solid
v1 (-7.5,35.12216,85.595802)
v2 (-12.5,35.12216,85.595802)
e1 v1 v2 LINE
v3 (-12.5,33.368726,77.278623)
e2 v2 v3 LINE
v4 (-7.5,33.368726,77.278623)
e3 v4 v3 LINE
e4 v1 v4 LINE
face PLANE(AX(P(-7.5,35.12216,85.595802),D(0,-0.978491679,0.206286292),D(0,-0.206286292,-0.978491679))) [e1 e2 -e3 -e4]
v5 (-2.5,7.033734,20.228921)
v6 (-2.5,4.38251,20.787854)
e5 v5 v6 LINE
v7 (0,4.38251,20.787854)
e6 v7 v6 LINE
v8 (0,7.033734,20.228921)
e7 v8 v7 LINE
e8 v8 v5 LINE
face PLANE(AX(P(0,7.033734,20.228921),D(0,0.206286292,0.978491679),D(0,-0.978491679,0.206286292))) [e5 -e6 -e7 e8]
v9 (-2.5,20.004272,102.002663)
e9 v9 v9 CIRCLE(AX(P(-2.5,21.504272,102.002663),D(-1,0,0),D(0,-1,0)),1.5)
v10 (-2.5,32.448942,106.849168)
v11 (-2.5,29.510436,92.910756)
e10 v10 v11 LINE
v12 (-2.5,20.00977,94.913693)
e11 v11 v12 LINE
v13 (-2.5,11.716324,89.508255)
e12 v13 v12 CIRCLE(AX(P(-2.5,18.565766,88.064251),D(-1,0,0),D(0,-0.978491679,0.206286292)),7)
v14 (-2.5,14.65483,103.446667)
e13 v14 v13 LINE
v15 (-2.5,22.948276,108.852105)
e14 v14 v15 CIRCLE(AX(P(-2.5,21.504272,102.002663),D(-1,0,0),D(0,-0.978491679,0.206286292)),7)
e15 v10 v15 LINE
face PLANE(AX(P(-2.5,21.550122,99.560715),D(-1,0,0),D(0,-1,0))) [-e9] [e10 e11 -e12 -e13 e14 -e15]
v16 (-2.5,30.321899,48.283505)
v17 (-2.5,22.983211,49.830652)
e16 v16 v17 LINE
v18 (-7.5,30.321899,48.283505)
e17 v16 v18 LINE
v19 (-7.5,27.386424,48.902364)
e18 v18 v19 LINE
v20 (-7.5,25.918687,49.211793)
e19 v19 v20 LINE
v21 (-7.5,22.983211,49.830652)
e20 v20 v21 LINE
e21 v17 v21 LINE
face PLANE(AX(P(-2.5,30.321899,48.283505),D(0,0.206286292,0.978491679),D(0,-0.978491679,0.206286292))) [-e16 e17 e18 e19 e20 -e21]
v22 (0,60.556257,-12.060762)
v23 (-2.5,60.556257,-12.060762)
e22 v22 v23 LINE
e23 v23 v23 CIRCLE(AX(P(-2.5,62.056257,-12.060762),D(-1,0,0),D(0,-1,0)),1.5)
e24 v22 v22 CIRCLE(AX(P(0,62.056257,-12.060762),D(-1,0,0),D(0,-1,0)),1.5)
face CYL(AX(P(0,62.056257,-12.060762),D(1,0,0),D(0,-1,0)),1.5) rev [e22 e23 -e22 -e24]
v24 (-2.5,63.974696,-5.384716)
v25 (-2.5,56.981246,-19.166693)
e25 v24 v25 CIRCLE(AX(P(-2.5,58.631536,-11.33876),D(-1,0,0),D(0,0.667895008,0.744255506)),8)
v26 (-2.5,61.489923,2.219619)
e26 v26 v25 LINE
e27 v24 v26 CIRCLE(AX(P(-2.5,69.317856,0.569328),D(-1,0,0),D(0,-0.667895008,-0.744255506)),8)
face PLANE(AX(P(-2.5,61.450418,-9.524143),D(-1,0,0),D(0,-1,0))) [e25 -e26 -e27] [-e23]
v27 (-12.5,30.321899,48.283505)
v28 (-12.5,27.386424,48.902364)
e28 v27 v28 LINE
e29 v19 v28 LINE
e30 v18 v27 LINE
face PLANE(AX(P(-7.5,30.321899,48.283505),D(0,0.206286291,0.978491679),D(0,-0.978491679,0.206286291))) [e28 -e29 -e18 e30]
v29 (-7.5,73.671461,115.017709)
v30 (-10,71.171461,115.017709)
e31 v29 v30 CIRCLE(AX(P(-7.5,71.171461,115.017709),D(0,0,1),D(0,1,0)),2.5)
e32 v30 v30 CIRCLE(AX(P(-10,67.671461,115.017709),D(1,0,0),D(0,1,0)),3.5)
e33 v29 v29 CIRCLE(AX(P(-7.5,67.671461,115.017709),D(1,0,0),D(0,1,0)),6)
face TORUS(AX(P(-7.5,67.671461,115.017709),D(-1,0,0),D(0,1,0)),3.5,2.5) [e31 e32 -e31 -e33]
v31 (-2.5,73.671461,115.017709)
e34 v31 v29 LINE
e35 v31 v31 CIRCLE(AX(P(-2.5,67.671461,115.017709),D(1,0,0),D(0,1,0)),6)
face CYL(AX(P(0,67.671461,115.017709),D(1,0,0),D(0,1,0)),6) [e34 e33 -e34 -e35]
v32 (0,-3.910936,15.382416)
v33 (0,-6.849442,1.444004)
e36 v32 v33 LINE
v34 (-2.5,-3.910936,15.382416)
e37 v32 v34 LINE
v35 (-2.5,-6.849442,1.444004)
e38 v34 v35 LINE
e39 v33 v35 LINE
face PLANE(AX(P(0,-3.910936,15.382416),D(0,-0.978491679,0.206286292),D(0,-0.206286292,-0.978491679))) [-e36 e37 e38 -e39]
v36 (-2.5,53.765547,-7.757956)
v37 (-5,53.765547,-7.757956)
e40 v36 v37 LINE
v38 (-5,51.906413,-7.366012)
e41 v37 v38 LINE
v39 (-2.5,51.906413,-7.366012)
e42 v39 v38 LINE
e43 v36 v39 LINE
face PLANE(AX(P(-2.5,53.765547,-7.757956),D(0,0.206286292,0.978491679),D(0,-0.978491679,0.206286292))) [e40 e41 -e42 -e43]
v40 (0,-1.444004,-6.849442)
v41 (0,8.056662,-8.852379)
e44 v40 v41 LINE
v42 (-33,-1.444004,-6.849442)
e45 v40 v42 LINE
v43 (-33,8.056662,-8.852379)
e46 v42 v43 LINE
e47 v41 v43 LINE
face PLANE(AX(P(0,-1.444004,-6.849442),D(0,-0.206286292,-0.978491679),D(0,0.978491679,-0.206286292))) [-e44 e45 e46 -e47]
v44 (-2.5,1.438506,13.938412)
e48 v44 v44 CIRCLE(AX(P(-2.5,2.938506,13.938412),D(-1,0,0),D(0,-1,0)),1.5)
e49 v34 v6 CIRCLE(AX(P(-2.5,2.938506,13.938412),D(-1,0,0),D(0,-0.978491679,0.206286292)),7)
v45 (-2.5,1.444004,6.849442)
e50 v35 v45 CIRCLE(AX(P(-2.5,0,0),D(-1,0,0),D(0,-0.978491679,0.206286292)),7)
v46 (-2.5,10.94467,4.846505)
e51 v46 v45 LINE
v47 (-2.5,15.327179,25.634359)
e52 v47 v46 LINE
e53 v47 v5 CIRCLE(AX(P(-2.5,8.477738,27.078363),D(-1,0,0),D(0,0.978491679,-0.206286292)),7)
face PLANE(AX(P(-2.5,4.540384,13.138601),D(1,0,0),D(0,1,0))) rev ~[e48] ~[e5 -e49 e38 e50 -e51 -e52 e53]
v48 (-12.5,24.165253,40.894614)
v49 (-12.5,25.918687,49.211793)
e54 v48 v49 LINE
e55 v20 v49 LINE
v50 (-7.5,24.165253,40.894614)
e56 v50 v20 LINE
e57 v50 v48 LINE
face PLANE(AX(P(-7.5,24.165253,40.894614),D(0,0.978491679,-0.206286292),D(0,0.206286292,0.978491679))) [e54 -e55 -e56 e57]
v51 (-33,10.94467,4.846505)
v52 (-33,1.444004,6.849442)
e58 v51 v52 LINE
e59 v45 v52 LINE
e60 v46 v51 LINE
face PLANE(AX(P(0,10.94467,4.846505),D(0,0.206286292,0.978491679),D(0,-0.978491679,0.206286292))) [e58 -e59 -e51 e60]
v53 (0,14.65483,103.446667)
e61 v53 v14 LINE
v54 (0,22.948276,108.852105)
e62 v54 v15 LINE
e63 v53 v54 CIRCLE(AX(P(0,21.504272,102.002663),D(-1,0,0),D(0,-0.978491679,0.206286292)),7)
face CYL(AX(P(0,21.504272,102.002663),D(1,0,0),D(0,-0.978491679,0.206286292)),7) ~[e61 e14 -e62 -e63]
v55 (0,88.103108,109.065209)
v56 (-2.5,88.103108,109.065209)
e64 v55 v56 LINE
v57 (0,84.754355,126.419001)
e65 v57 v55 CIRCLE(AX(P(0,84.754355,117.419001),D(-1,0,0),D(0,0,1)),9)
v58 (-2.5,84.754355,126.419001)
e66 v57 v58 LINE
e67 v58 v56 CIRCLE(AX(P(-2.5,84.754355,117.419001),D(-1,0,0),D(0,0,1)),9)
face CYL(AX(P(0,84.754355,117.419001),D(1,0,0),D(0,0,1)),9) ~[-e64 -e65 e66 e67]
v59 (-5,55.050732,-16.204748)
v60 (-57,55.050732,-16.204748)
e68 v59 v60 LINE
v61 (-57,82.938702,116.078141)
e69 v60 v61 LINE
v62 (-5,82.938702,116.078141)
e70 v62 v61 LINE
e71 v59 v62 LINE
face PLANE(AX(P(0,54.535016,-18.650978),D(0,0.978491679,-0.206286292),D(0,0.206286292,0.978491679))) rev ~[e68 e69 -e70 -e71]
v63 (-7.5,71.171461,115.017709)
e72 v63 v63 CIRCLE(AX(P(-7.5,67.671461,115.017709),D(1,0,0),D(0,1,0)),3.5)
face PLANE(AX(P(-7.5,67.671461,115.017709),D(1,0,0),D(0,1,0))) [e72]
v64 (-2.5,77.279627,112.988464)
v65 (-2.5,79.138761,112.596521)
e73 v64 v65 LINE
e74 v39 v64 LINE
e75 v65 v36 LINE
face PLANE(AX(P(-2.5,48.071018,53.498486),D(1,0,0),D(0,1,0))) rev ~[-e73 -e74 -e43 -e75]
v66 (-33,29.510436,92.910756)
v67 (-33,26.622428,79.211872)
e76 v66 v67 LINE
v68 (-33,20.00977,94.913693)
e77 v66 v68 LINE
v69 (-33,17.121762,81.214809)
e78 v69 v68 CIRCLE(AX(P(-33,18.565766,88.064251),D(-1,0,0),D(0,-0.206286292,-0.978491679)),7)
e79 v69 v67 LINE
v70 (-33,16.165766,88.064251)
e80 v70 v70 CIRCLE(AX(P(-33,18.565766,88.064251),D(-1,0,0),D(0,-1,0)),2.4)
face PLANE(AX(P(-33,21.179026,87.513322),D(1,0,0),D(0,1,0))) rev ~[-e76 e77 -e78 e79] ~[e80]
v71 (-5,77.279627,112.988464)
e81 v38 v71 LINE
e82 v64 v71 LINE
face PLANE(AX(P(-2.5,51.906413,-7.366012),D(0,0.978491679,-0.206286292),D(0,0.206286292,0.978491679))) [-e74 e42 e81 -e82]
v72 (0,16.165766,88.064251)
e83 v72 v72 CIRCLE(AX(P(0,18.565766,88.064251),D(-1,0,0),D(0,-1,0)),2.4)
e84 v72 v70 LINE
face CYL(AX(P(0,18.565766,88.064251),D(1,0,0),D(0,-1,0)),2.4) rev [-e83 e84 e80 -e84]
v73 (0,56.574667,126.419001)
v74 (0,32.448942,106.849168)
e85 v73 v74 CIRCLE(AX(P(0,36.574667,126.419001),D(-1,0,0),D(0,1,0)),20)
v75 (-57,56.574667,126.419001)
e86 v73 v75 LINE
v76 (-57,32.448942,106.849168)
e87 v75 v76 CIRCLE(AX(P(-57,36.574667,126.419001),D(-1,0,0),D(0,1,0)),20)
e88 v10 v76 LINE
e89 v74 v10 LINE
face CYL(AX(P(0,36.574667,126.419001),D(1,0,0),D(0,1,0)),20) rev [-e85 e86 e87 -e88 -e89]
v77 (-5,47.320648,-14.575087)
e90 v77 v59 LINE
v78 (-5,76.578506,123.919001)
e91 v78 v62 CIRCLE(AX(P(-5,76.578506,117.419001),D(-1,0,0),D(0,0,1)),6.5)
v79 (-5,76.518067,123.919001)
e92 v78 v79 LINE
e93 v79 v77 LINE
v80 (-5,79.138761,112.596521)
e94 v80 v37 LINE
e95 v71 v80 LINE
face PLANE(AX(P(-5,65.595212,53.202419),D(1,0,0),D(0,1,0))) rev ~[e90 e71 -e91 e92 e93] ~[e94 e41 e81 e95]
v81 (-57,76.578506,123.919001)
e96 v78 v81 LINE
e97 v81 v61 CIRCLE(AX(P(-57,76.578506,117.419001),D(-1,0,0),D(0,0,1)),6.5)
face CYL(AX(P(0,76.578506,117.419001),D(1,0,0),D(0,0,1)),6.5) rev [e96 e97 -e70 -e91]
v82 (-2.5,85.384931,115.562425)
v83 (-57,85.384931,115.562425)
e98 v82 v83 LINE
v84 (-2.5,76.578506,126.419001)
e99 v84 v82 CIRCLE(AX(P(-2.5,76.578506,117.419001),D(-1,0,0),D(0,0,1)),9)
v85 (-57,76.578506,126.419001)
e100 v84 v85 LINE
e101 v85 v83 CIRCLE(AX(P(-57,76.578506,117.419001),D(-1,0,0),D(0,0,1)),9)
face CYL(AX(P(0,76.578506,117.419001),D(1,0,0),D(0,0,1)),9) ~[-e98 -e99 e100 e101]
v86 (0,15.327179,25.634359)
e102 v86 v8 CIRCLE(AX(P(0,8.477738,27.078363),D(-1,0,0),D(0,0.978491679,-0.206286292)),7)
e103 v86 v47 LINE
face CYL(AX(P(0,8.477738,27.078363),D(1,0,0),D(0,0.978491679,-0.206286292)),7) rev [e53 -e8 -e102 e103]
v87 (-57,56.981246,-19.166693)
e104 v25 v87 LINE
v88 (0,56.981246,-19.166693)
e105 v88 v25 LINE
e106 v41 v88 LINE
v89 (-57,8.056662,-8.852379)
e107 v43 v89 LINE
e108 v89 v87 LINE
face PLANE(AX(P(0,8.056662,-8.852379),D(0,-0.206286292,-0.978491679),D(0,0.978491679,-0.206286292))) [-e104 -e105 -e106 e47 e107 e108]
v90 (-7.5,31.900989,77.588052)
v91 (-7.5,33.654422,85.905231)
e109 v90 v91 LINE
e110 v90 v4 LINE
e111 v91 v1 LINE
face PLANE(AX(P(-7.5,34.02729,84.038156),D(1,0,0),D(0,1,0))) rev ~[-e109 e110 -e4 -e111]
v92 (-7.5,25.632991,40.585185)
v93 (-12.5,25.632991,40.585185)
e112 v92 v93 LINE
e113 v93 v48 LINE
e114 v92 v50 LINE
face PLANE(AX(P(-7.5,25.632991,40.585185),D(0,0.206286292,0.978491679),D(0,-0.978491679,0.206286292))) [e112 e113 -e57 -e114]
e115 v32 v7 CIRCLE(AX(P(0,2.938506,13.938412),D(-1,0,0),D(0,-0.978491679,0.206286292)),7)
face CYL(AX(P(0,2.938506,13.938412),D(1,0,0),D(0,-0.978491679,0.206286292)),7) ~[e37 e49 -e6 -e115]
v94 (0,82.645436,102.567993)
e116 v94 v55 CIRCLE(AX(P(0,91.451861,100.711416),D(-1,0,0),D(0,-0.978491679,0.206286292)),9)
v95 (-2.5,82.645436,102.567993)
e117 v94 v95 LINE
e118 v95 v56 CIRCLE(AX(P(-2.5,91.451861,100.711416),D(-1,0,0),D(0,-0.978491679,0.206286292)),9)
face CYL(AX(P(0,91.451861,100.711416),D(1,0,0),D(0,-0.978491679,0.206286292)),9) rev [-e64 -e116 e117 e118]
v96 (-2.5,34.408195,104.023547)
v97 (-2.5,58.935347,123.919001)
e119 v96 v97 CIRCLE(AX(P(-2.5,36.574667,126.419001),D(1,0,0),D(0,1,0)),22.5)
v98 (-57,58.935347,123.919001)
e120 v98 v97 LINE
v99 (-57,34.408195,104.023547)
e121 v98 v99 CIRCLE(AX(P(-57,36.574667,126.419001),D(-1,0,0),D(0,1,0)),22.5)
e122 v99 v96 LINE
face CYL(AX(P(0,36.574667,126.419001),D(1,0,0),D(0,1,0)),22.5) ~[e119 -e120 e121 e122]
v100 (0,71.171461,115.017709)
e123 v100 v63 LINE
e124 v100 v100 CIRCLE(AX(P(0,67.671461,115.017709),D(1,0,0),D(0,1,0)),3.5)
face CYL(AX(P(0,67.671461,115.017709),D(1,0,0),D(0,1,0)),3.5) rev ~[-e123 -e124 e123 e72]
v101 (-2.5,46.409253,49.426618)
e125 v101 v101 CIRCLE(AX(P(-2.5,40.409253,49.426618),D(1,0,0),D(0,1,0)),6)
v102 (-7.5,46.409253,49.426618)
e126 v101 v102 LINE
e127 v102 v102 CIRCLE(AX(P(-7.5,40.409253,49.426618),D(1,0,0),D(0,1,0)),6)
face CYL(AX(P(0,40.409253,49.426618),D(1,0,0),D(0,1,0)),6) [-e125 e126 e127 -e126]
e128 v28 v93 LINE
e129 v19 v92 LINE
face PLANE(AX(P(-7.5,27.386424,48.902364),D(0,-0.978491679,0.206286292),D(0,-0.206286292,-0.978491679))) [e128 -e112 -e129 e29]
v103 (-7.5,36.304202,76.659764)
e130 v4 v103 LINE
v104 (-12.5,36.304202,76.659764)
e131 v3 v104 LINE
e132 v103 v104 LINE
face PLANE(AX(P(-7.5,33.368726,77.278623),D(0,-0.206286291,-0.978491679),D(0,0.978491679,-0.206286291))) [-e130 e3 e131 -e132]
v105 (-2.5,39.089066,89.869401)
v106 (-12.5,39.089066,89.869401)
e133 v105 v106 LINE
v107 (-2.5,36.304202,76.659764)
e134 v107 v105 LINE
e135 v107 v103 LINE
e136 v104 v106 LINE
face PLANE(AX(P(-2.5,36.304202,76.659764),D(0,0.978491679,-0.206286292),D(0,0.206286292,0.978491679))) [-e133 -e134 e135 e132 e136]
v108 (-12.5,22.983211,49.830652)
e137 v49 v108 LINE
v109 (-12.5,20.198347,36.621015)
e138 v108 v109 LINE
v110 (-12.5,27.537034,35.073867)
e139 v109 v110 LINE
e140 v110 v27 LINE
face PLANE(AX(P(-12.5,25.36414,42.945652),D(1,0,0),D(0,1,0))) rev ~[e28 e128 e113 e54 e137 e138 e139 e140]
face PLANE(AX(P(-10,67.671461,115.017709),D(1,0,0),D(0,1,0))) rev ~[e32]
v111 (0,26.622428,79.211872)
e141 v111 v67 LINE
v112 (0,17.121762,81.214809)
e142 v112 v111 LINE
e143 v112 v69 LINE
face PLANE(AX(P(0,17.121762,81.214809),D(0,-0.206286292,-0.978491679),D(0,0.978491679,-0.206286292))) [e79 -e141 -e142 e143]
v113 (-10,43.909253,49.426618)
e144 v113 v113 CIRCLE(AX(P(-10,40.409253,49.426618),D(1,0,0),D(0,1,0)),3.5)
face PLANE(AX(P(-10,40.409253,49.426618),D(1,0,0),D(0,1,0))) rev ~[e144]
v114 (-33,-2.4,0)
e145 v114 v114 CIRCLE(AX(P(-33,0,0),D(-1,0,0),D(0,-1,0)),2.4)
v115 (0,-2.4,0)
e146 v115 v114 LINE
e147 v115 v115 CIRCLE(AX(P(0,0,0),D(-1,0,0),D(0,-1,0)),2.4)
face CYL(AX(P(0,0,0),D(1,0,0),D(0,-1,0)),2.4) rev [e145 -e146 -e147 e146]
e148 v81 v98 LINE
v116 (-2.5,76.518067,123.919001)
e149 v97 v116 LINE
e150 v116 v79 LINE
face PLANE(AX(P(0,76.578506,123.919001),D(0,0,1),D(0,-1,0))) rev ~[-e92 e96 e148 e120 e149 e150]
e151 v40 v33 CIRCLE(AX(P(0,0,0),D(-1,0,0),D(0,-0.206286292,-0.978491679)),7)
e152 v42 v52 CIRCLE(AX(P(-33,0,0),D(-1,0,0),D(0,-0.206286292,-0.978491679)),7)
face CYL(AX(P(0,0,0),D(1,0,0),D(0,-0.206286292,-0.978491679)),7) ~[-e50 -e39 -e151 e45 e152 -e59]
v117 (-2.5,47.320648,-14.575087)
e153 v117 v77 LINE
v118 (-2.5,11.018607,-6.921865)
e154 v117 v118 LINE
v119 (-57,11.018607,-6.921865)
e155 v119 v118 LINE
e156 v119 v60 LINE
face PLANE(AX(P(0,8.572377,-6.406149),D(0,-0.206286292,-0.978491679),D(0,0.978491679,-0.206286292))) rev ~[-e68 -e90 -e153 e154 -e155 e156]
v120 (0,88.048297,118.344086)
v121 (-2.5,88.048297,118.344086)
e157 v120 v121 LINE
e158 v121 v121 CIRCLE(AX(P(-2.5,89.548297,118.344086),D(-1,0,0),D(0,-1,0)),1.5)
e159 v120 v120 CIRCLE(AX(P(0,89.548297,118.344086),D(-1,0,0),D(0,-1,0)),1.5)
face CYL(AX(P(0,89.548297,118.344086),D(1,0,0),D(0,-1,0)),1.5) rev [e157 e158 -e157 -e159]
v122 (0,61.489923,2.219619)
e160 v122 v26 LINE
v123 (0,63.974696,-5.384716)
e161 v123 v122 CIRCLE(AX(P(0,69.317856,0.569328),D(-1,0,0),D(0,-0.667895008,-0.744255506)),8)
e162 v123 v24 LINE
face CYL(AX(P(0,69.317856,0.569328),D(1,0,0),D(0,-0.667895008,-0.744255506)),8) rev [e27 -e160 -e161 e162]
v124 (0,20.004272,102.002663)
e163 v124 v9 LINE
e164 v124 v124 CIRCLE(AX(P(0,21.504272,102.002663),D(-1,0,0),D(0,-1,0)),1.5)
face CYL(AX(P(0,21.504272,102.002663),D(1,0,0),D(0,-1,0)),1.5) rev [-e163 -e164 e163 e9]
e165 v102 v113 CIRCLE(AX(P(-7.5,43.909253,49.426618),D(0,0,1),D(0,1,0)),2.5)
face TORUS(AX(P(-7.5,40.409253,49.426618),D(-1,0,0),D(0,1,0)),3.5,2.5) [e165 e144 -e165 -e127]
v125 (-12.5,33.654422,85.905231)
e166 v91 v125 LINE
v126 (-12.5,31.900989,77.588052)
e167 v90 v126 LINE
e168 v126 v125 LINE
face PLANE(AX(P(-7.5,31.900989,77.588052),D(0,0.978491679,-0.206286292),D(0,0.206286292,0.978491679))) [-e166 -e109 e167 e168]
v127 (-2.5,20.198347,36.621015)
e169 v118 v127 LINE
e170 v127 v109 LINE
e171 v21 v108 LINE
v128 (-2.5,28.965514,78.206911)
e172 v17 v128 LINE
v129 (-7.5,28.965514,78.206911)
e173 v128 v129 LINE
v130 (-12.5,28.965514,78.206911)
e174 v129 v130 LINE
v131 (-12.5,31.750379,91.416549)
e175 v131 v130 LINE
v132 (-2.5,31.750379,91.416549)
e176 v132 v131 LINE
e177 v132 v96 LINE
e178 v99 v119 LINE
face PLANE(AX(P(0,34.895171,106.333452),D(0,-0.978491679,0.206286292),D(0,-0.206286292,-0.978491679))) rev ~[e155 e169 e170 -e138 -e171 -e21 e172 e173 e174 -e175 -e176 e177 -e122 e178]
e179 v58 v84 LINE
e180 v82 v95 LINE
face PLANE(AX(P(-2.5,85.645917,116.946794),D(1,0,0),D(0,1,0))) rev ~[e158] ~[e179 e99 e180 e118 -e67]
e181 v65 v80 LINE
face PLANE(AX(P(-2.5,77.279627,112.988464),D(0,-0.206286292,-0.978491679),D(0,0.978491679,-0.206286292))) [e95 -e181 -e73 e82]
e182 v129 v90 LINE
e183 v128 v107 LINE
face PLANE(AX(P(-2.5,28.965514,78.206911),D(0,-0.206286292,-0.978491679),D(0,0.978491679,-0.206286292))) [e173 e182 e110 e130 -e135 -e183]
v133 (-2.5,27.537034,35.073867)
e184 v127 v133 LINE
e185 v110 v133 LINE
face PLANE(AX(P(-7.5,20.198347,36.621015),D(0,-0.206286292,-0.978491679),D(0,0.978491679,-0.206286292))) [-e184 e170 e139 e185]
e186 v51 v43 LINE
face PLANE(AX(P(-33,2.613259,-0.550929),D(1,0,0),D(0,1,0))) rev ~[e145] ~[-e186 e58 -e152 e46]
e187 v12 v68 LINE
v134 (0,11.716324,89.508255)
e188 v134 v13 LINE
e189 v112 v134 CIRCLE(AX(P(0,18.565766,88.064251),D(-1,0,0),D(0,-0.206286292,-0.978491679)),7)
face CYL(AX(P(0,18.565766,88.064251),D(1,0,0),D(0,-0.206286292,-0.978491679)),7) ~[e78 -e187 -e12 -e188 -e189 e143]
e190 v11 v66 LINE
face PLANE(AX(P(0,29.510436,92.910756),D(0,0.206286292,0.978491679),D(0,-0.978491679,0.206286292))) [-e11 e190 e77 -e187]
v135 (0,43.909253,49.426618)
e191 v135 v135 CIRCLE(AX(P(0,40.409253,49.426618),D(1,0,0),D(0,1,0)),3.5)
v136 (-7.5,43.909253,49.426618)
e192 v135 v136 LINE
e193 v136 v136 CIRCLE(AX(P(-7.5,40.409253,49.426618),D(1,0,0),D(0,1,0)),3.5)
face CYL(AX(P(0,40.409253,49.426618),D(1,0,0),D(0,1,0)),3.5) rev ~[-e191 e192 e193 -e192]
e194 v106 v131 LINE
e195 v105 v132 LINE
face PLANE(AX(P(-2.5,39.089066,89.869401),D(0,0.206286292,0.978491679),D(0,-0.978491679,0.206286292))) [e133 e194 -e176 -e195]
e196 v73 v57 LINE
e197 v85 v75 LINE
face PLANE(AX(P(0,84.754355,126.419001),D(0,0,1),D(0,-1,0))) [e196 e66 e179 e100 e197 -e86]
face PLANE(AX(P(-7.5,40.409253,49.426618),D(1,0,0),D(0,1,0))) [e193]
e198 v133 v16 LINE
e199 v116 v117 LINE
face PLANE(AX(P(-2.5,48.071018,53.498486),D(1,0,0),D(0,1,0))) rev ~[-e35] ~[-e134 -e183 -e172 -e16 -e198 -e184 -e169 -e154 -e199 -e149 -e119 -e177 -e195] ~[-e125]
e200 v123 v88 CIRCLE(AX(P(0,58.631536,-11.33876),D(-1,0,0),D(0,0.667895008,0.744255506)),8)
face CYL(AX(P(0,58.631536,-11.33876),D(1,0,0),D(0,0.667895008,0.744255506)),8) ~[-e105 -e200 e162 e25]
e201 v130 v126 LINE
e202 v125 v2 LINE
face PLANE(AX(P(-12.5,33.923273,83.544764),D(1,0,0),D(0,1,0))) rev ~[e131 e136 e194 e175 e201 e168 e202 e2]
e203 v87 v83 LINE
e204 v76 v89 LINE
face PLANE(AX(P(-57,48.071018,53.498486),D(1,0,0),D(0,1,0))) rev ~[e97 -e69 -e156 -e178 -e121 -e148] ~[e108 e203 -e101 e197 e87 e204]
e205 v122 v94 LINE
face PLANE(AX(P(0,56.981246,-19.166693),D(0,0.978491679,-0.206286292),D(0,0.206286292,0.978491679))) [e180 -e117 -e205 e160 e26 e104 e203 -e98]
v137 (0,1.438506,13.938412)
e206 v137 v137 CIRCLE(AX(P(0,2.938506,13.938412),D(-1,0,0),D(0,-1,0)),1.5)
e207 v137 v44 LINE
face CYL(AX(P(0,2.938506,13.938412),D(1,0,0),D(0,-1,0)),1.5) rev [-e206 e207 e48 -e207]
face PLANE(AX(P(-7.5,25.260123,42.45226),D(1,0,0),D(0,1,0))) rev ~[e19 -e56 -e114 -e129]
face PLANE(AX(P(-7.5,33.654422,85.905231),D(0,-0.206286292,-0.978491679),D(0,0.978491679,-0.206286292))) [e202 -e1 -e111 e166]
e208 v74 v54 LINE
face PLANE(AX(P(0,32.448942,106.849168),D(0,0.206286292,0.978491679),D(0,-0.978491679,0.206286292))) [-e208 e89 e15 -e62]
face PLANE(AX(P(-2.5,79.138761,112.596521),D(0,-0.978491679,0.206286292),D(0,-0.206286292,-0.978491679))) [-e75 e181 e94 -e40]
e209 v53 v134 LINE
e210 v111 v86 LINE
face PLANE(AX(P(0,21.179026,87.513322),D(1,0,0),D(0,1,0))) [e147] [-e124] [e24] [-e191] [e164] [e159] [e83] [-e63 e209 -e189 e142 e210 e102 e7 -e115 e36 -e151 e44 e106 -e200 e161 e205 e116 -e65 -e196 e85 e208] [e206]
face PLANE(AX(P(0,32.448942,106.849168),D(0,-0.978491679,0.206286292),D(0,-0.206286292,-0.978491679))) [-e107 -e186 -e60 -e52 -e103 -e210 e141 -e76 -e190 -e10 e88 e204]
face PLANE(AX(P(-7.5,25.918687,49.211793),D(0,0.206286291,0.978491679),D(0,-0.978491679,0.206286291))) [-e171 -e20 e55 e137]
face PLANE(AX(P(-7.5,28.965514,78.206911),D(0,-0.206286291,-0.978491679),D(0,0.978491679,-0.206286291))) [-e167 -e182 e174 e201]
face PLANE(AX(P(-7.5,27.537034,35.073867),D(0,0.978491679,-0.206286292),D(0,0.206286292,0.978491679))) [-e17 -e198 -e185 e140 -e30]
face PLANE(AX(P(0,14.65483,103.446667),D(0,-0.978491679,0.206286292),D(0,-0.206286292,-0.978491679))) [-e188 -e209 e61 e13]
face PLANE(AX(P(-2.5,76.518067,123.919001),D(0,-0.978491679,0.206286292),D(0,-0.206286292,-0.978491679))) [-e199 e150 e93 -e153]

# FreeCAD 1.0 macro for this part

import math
import FreeCAD as App
import Part
import Sketcher

V = App.Vector
Q = App.Units.Quantity


def faces_at(feature, points):
    """Names of the faces that lie closest to the given points."""
    faces = feature.Shape.Faces
    near = lambda p: min(range(len(faces)), key=lambda i: faces[i].distToShape(Part.Vertex(*p))[0])
    return sorted({f"Face{near(p) + 1}" for p in points})


def add_polygon(sketch, points):
    """Adds a closed chain of lines whose ends are joined by coincident constraints."""
    first, n = sketch.GeometryCount, len(points)
    for a, b in zip(points, points[1:] + points[:1]):
        sketch.addGeometry(Part.LineSegment(App.Vector(*a, 0), App.Vector(*b, 0)), False)
    for i in range(n):
        sketch.addConstraint(Sketcher.Constraint("Coincident", first + i, 2, first + (i + 1) % n, 1))

doc = App.newDocument("Part")
params = doc.addObject("Spreadsheet::Sheet", "Params")
for row, (alias, value) in enumerate([
    ("sketch1_radius", "20 mm"),
    ("sketch1_radius2", "9 mm"),
    ("sketch1_length", "50 mm"),
    ("pad1_length", "57 mm"),
    ("sketch2_diameter", "7 mm"),
    ("pocket1_length", "7.5 mm"),
    ("thickness_wall", "2.5 mm"),
    ("sketch3_diameter", "3 mm"),
    ("sketch3_radius", "9 mm"),
    ("sketch3_radius2", "7 mm"),
    ("sketch3_radius3", "8 mm"),
    ("pad2_length", "2.5 mm"),
    ("sketch4_radius", "7 mm"),
    ("sketch4_diameter", "4.8 mm"),
    ("pad3_length", "33 mm"),
    ("sketch5_radius", "6.5 mm"),
    ("sketch5_length", "123 mm"),
    ("sketch5_length2", "7.9 mm"),
    ("sketch5_length3", "1.9 mm"),
    ("pad4_length", "2.5 mm"),
    ("sketch6_length", "7.5 mm"),
    ("sketch6_length2", "13.5 mm"),
    ("pad5_length", "5 mm"),
    ("sketch7_length", "3 mm"),
    ("sketch7_length2", "7.5 mm"),
    ("sketch7_length3", "13.5 mm"),
    ("sketch7_length4", "8.5 mm"),
    ("pad6_length", "5 mm"),
], start=1):
    params.set(f"A{row}", alias)
    params.set(f"B{row}", "=" + value)
    params.setAlias(f"B{row}", alias)

body = doc.addObject("PartDesign::Body", "Body")

# Sketch on YZ plane
sketch1 = doc.addObject("Sketcher::SketchObject", "Sketch")
body.addObject(sketch1)
sketch1.AttachmentSupport = (doc.YZ_Plane, [""])
sketch1.MapMode = "FlatFace"
sketch1.addGeometry(Part.LineSegment(V(85, 116, 0), V(57, -19, 0)), False)
sketch1.addGeometry(Part.LineSegment(V(57, -19, 0), V(8, -9, 0)), False)
sketch1.addGeometry(Part.LineSegment(V(8, -9, 0), V(32, 107, 0)), False)
sketch1.addGeometry(Part.ArcOfCircle(Part.Circle(V(37, 126, 0), V(0, 0, 1), 20), math.radians(-102), math.radians(0)), False)
sketch1.addGeometry(Part.LineSegment(V(57, 126, 0), V(77, 126, 0)), False)
sketch1.addGeometry(Part.ArcOfCircle(Part.Circle(V(77, 117, 0), V(0, 0, 1), 9), math.radians(-12), math.radians(90)), False)
sketch1.addConstraint(Sketcher.Constraint("Coincident", 0, 2, 1, 1))
sketch1.addConstraint(Sketcher.Constraint("Coincident", 1, 2, 2, 1))
sketch1.addConstraint(Sketcher.Constraint("Coincident", 2, 2, 3, 1))
sketch1.addConstraint(Sketcher.Constraint("Coincident", 3, 2, 4, 1))
sketch1.addConstraint(Sketcher.Constraint("Tangent", 4, 2, 5, 2))
sketch1.addConstraint(Sketcher.Constraint("Tangent", 5, 1, 0, 1))
sketch1.addConstraint(Sketcher.Constraint("Horizontal", 4))
sketch1.addConstraint(Sketcher.Constraint("Perpendicular", 0, 1))
sketch1.addConstraint(Sketcher.Constraint("Perpendicular", 1, 2))
sketch1.addConstraint(Sketcher.Constraint("Radius", 3, Q("20 mm")))
sketch1.addConstraint(Sketcher.Constraint("Radius", 5, Q("9 mm")))
sketch1.addConstraint(Sketcher.Constraint("Distance", 1, Q("50 mm")))
sketch1.addConstraint(Sketcher.Constraint("DistanceY", 5, 3, 3, 3, Q("9 mm")))
sketch1.addConstraint(Sketcher.Constraint("DistanceY", -1, 1, 3, 3, Q("126.419001 mm")))
sketch1.addConstraint(Sketcher.Constraint("DistanceX", 4, 1, 4, 2, Q("20.003839 mm")))
sketch1.addConstraint(Sketcher.Constraint("Distance", 0, Q("137.690612 mm")))
sketch1.addConstraint(Sketcher.Constraint("DistanceX", -1, 1, 1, 2, Q("8.056662 mm")))
sketch1.addConstraint(Sketcher.Constraint("DistanceY", 1, 2, -1, 1, Q("8.852379 mm")))
sketch1.setExpression("Constraints[9]", "Params.sketch1_radius")
sketch1.setExpression("Constraints[10]", "Params.sketch1_radius2")
sketch1.setExpression("Constraints[11]", "Params.sketch1_length")
pad1 = doc.addObject("PartDesign::Pad", "Pad")
body.addObject(pad1)
pad1.Profile = sketch1
pad1.setExpression("Length", "Params.pad1_length")
pad1.Reversed = True

# Sketch on YZ plane
sketch2 = doc.addObject("Sketcher::SketchObject", "Sketch001")
body.addObject(sketch2)
sketch2.AttachmentSupport = (doc.YZ_Plane, [""])
sketch2.MapMode = "FlatFace"
sketch2.addGeometry(Part.Circle(V(40.4, 49.4, 0), V(0, 0, 1), 3.5), False)
sketch2.addGeometry(Part.Circle(V(67.7, 115, 0), V(0, 0, 1), 3.5), False)
sketch2.addConstraint(Sketcher.Constraint("Equal", 0, 1))
sketch2.addConstraint(Sketcher.Constraint("Diameter", 0, Q("7 mm")))
sketch2.addConstraint(Sketcher.Constraint("DistanceX", -1, 1, 1, 3, Q("67.671461 mm")))
sketch2.addConstraint(Sketcher.Constraint("DistanceY", -1, 1, 1, 3, Q("115.017709 mm")))
sketch2.addConstraint(Sketcher.Constraint("DistanceX", 0, 3, 1, 3, Q("27.262209 mm")))
sketch2.addConstraint(Sketcher.Constraint("DistanceY", 0, 3, 1, 3, Q("65.591091 mm")))
sketch2.setExpression("Constraints[1]", "Params.sketch2_diameter")
pocket1 = doc.addObject("PartDesign::Pocket", "Pocket")
body.addObject(pocket1)
pocket1.Profile = sketch2
pocket1.setExpression("Length", "Params.pocket1_length")
doc.recompute()

thickness = doc.addObject("PartDesign::Thickness", "Thickness")
body.addObject(thickness)
thickness.Base = (pocket1, faces_at(pocket1, [(-57, 46.818, 53.626)]))
thickness.setExpression("Value", "Params.thickness_wall")
thickness.Reversed = True
thickness.Join = "Arc"

# Sketch on YZ plane
sketch3 = doc.addObject("Sketcher::SketchObject", "Sketch002")
body.addObject(sketch3)
sketch3.AttachmentSupport = (doc.YZ_Plane, [""])
sketch3.MapMode = "FlatFace"
sketch3.addGeometry(Part.ArcOfCircle(Part.Circle(V(76.6, 117.4, 0), V(0, 0, 1), 9), math.radians(-12), math.radians(90)), False)
sketch3.addGeometry(Part.LineSegment(V(76.6, 126.4, 0), V(84.8, 126.4, 0)), False)
sketch3.addGeometry(Part.ArcOfCircle(Part.Circle(V(84.8, 117.4, 0), V(0, 0, 1), 9), math.radians(-68), math.radians(90)), False)
sketch3.addGeometry(Part.ArcOfCircle(Part.Circle(V(91.5, 100.7, 0), V(0, 0, 1), 9), math.radians(112), math.radians(168)), False)
sketch3.addGeometry(Part.LineSegment(V(82.6, 102.6, 0), V(85.4, 115.6, 0)), False)
sketch3.addGeometry(Part.Circle(V(89.5, 118.3, 0), V(0, 0, 1), 1.5), False)
sketch3.addGeometry(Part.ArcOfCircle(Part.Circle(V(21.5, 102, 0), V(0, 0, 1), 7), math.radians(78), math.radians(168)), False)
sketch3.addGeometry(Part.LineSegment(V(22.9, 108.9, 0), V(32.4, 106.8, 0)), False)
sketch3.addGeometry(Part.LineSegment(V(32.4, 106.8, 0), V(29.5, 92.9, 0)), False)
sketch3.addGeometry(Part.LineSegment(V(29.5, 92.9, 0), V(20, 94.9, 0)), False)
sketch3.addGeometry(Part.ArcOfCircle(Part.Circle(V(18.6, 88.1, 0), V(0, 0, 1), 7), math.radians(78), math.radians(168)), False)
sketch3.addGeometry(Part.LineSegment(V(11.7, 89.5, 0), V(14.7, 103.4, 0)), False)
sketch3.addGeometry(Part.Circle(V(21.5, 102, 0), V(0, 0, 1), 1.5), False)
sketch3.addGeometry(Part.ArcOfCircle(Part.Circle(V(8.5, 27.1, 0), V(0, 0, 1), 7), math.radians(-102), math.radians(-12)), False)
sketch3.addGeometry(Part.LineSegment(V(15.3, 25.6, 0), V(10.9, 4.8, 0)), False)
sketch3.addGeometry(Part.LineSegment(V(10.9, 4.8, 0), V(1.4, 6.8, 0)), False)
sketch3.addGeometry(Part.ArcOfCircle(Part.Circle(V(0, 0, 0), V(0, 0, 1), 7), math.radians(78), math.radians(168)), False)
sketch3.addGeometry(Part.LineSegment(V(-6.8, 1.4, 0), V(-3.9, 15.4, 0)), False)
sketch3.addGeometry(Part.ArcOfCircle(Part.Circle(V(2.9, 13.9, 0), V(0, 0, 1), 7), math.radians(78), math.radians(168)), False)
sketch3.addGeometry(Part.LineSegment(V(4.4, 20.8, 0), V(7, 20.2, 0)), False)
sketch3.addGeometry(Part.Circle(V(2.9, 13.9, 0), V(0, 0, 1), 1.5), False)
sketch3.addGeometry(Part.ArcOfCircle(Part.Circle(V(58.6, -11.3, 0), V(0, 0, 1), 8), math.radians(-102), math.radians(48)), False)
sketch3.addGeometry(Part.LineSegment(V(57, -19.2, 0), V(61.5, 2.2, 0)), False)
sketch3.addGeometry(Part.ArcOfCircle(Part.Circle(V(69.3, 0.6, 0), V(0, 0, 1), 8), math.radians(168), math.radians(228)), False)
sketch3.addGeometry(Part.Circle(V(62.1, -12.1, 0), V(0, 0, 1), 1.5), False)
sketch3.addConstraint(Sketcher.Constraint("Tangent", 0, 2, 1, 1))
sketch3.addConstraint(Sketcher.Constraint("Tangent", 1, 2, 2, 2))
sketch3.addConstraint(Sketcher.Constraint("Tangent", 2, 1, 3, 1))
sketch3.addConstraint(Sketcher.Constraint("Tangent", 3, 2, 4, 1))
sketch3.addConstraint(Sketcher.Constraint("Tangent", 4, 2, 0, 1))
sketch3.addConstraint(Sketcher.Constraint("Tangent", 6, 1, 7, 1))
sketch3.addConstraint(Sketcher.Constraint("Coincident", 7, 2, 8, 1))
sketch3.addConstraint(Sketcher.Constraint("Coincident", 8, 2, 9, 1))
sketch3.addConstraint(Sketcher.Constraint("Tangent", 9, 2, 10, 1))
sketch3.addConstraint(Sketcher.Constraint("Tangent", 10, 2, 11, 1))
sketch3.addConstraint(Sketcher.Constraint("Tangent", 11, 2, 6, 2))
sketch3.addConstraint(Sketcher.Constraint("Tangent", 13, 2, 14, 1))
sketch3.addConstraint(Sketcher.Constraint("Coincident", 14, 2, 15, 1))
sketch3.addConstraint(Sketcher.Constraint("Tangent", 15, 2, 16, 1))
sketch3.addConstraint(Sketcher.Constraint("Tangent", 16, 2, 17, 1))
sketch3.addConstraint(Sketcher.Constraint("Tangent", 17, 2, 18, 2))
sketch3.addConstraint(Sketcher.Constraint("Tangent", 18, 1, 19, 1))
sketch3.addConstraint(Sketcher.Constraint("Tangent", 19, 2, 13, 1))
sketch3.addConstraint(Sketcher.Constraint("Coincident", 21, 1, 22, 1))
sketch3.addConstraint(Sketcher.Constraint("Tangent", 22, 2, 23, 1))
sketch3.addConstraint(Sketcher.Constraint("Tangent", 23, 2, 21, 2))
sketch3.addConstraint(Sketcher.Constraint("Horizontal", 1))
sketch3.addConstraint(Sketcher.Constraint("Coincident", 16, 3, -1, 1))
sketch3.addConstraint(Sketcher.Constraint("Coincident", 12, 3, 6, 3))
sketch3.addConstraint(Sketcher.Constraint("Coincident", 20, 3, 18, 3))
sketch3.addConstraint(Sketcher.Constraint("Equal", 0, 2))
sketch3.addConstraint(Sketcher.Constraint("Equal", 2, 3))
sketch3.addConstraint(Sketcher.Constraint("Equal", 6, 10))
sketch3.addConstraint(Sketcher.Constraint("Equal", 5, 12))
sketch3.addConstraint(Sketcher.Constraint("Equal", 10, 13))
sketch3.addConstraint(Sketcher.Constraint("Equal", 13, 16))
sketch3.addConstraint(Sketcher.Constraint("Equal", 16, 18))
sketch3.addConstraint(Sketcher.Constraint("Equal", 12, 20))
sketch3.addConstraint(Sketcher.Constraint("Equal", 21, 23))
sketch3.addConstraint(Sketcher.Constraint("Equal", 20, 24))
sketch3.addConstraint(Sketcher.Constraint("Perpendicular", 4, 7))
sketch3.addConstraint(Sketcher.Constraint("Perpendicular", 7, 8))
sketch3.addConstraint(Sketcher.Constraint("Perpendicular", 8, 9))
sketch3.addConstraint(Sketcher.Constraint("Perpendicular", 9, 11))
sketch3.addConstraint(Sketcher.Constraint("Parallel", 11, 14))
sketch3.addConstraint(Sketcher.Constraint("Perpendicular", 14, 15))
sketch3.addConstraint(Sketcher.Constraint("Perpendicular", 15, 17))
sketch3.addConstraint(Sketcher.Constraint("Perpendicular", 17, 19))
sketch3.addConstraint(Sketcher.Constraint("Perpendicular", 19, 22))
sketch3.addConstraint(Sketcher.Constraint("Equal", 9, 15))
sketch3.addConstraint(Sketcher.Constraint("Equal", 11, 17))
sketch3.addConstraint(Sketcher.Constraint("Diameter", 5, Q("3 mm")))
sketch3.addConstraint(Sketcher.Constraint("Radius", 0, Q("9 mm")))
sketch3.addConstraint(Sketcher.Constraint("Radius", 6, Q("7 mm")))
sketch3.addConstraint(Sketcher.Constraint("Radius", 21, Q("8 mm")))
sketch3.addConstraint(Sketcher.Constraint("DistanceY", -1, 1, 0, 3, Q("117.419001 mm")))
sketch3.addConstraint(Sketcher.Constraint("Distance", 7, Q("9.709501 mm")))
sketch3.addConstraint(Sketcher.Constraint("DistanceX", 1, 1, 1, 2, Q("8.175849 mm")))
sketch3.addConstraint(Sketcher.Constraint("DistanceY", 13, 3, 6, 3, Q("74.9243 mm")))
sketch3.addConstraint(Sketcher.Constraint("DistanceX", 13, 3, 21, 3, Q("50.153798 mm")))
sketch3.addConstraint(Sketcher.Constraint("DistanceX", 24, 3, 23, 3, Q("7.261599 mm")))
sketch3.addConstraint(Sketcher.Constraint("DistanceX", 0, 3, 2, 1, Q("11.524602 mm")))
sketch3.addConstraint(Sketcher.Constraint("DistanceX", 9, 2, 6, 3, Q("1.494502 mm")))
sketch3.addConstraint(Sketcher.Constraint("DistanceY", 21, 1, 14, 2, Q("24.013198 mm")))
sketch3.addConstraint(Sketcher.Constraint("DistanceX", -1, 1, 3, 3, Q("91.451861 mm")))
sketch3.addConstraint(Sketcher.Constraint("DistanceX", -1, 1, 6, 3, Q("21.504272 mm")))
sketch3.addConstraint(Sketcher.Constraint("DistanceY", 21, 3, -1, 1, Q("11.33876 mm")))
sketch3.addConstraint(Sketcher.Constraint("DistanceY", 24, 3, -1, 1, Q("12.060762 mm")))
sketch3.addConstraint(Sketcher.Constraint("DistanceX", 2, 3, 5, 3, Q("4.793942 mm")))
sketch3.addConstraint(Sketcher.Constraint("DistanceY", 3, 3, 5, 3, Q("17.63267 mm")))
sketch3.setExpression("Constraints[46]", "Params.sketch3_diameter")
sketch3.setExpression("Constraints[47]", "Params.sketch3_radius")
sketch3.setExpression("Constraints[48]", "Params.sketch3_radius2")
sketch3.setExpression("Constraints[49]", "Params.sketch3_radius3")
pad2 = doc.addObject("PartDesign::Pad", "Pad001")
body.addObject(pad2)
pad2.Profile = sketch3
pad2.setExpression("Length", "Params.pad2_length")
pad2.Reversed = True

# Sketch on YZ plane
sketch4 = doc.addObject("Sketcher::SketchObject", "Sketch003")
body.addObject(sketch4)
sketch4.AttachmentSupport = (doc.YZ_Plane, [""])
sketch4.MapMode = "FlatFace"
sketch4.addGeometry(Part.LineSegment(V(20, 94.9, 0), V(29.5, 92.9, 0)), False)
sketch4.addGeometry(Part.LineSegment(V(29.5, 92.9, 0), V(26.6, 79.2, 0)), False)
sketch4.addGeometry(Part.LineSegment(V(26.6, 79.2, 0), V(17.1, 81.2, 0)), False)
sketch4.addGeometry(Part.ArcOfCircle(Part.Circle(V(18.6, 88.1, 0), V(0, 0, 1), 7), math.radians(78), math.radians(258)), False)
sketch4.addGeometry(Part.Circle(V(18.6, 88.1, 0), V(0, 0, 1), 2.4), False)
sketch4.addGeometry(Part.LineSegment(V(1.4, 6.8, 0), V(10.9, 4.8, 0)), False)
sketch4.addGeometry(Part.LineSegment(V(10.9, 4.8, 0), V(8.1, -8.9, 0)), False)
sketch4.addGeometry(Part.LineSegment(V(8.1, -8.9, 0), V(-1.4, -6.8, 0)), False)
sketch4.addGeometry(Part.ArcOfCircle(Part.Circle(V(0, 0, 0), V(0, 0, 1), 7), math.radians(78), math.radians(258)), False)
sketch4.addGeometry(Part.Circle(V(0, 0, 0), V(0, 0, 1), 2.4), False)
sketch4.addConstraint(Sketcher.Constraint("Coincident", 0, 2, 1, 1))
sketch4.addConstraint(Sketcher.Constraint("Coincident", 1, 2, 2, 1))
sketch4.addConstraint(Sketcher.Constraint("Tangent", 2, 2, 3, 2))
sketch4.addConstraint(Sketcher.Constraint("Tangent", 3, 1, 0, 1))
sketch4.addConstraint(Sketcher.Constraint("Coincident", 5, 2, 6, 1))
sketch4.addConstraint(Sketcher.Constraint("Coincident", 6, 2, 7, 1))
sketch4.addConstraint(Sketcher.Constraint("Tangent", 7, 2, 8, 2))
sketch4.addConstraint(Sketcher.Constraint("Tangent", 8, 1, 5, 1))
sketch4.addConstraint(Sketcher.Constraint("Coincident", 8, 3, -1, 1))
sketch4.addConstraint(Sketcher.Constraint("Coincident", 9, 3, -1, 1))
sketch4.addConstraint(Sketcher.Constraint("Coincident", 4, 3, 3, 3))
sketch4.addConstraint(Sketcher.Constraint("Equal", 3, 8))
sketch4.addConstraint(Sketcher.Constraint("Equal", 4, 9))
sketch4.addConstraint(Sketcher.Constraint("Perpendicular", 0, 1))
sketch4.addConstraint(Sketcher.Constraint("Perpendicular", 1, 2))
sketch4.addConstraint(Sketcher.Constraint("Parallel", 2, 5))
sketch4.addConstraint(Sketcher.Constraint("Perpendicular", 5, 6))
sketch4.addConstraint(Sketcher.Constraint("Perpendicular", 6, 7))
sketch4.addConstraint(Sketcher.Constraint("Equal", 2, 5))
sketch4.addConstraint(Sketcher.Constraint("Radius", 3, Q("7 mm")))
sketch4.addConstraint(Sketcher.Constraint("Diameter", 4, Q("4.8 mm")))
sketch4.addConstraint(Sketcher.Constraint("Distance", 0, Q("9.709501 mm")))
sketch4.addConstraint(Sketcher.Constraint("DistanceX", 6, 2, 2, 2, Q("9.065101 mm")))
sketch4.addConstraint(Sketcher.Constraint("DistanceY", -1, 1, 3, 3, Q("88.064251 mm")))
sketch4.addConstraint(Sketcher.Constraint("DistanceY", -1, 1, 2, 2, Q("81.214809 mm")))
sketch4.setExpression("Constraints[19]", "Params.sketch4_radius")
sketch4.setExpression("Constraints[20]", "Params.sketch4_diameter")
pad3 = doc.addObject("PartDesign::Pad", "Pad002")
body.addObject(pad3)
pad3.Profile = sketch4
pad3.setExpression("Length", "Params.pad3_length")
pad3.Reversed = True

# Sketch on YZ plane
sketch5 = doc.addObject("Sketcher::SketchObject", "Sketch004")
body.addObject(sketch5)
sketch5.AttachmentSupport = (doc.YZ_Plane, [""])
sketch5.MapMode = "FlatFace"
sketch5.AttachmentOffset = App.Placement(V(0, 0, -2.5), App.Rotation())
sketch5.addGeometry(Part.LineSegment(V(55.05, -16.2, 0), V(47.32, -14.58, 0)), False)  # 0
sketch5.addGeometry(Part.LineSegment(V(47.32, -14.58, 0), V(76.52, 123.92, 0)), False)  # 1
sketch5.addGeometry(Part.LineSegment(V(76.52, 123.92, 0), V(76.58, 123.92, 0)), False)  # 2
sketch5.addGeometry(Part.ArcOfCircle(Part.Circle(V(76.58, 117.42, 0), V(0, 0, 1), 6.5), math.radians(-12), math.radians(90)), False)  # 3
sketch5.addGeometry(Part.LineSegment(V(82.94, 116.08, 0), V(55.05, -16.2, 0)), False)  # 4
add_polygon(sketch5, [(77.28, 112.99), (51.91, -7.37), (53.77, -7.76), (79.14, 112.6)])  # lines 5-8
sketch5.addConstraint(Sketcher.Constraint("Coincident", 0, 2, 1, 1))
sketch5.addConstraint(Sketcher.Constraint("Coincident", 1, 2, 2, 1))
sketch5.addConstraint(Sketcher.Constraint("Tangent", 2, 2, 3, 2))
sketch5.addConstraint(Sketcher.Constraint("Tangent", 3, 1, 4, 1))
sketch5.addConstraint(Sketcher.Constraint("Coincident", 4, 2, 0, 1))
sketch5.addConstraint(Sketcher.Constraint("Horizontal", 2))
sketch5.addConstraint(Sketcher.Constraint("Perpendicular", 0, 1))
sketch5.addConstraint(Sketcher.Constraint("Parallel", 1, 4))
sketch5.addConstraint(Sketcher.Constraint("Parallel", 4, 5))
sketch5.addConstraint(Sketcher.Constraint("Perpendicular", 5, 6))
sketch5.addConstraint(Sketcher.Constraint("Perpendicular", 6, 7))
sketch5.addConstraint(Sketcher.Constraint("Perpendicular", 7, 8))
sketch5.addConstraint(Sketcher.Constraint("Radius", 3, Q("6.5 mm")))
sketch5.addConstraint(Sketcher.Constraint("Distance", 5, Q("123 mm")))
sketch5.addConstraint(Sketcher.Constraint("Distance", 0, Q("7.9 mm")))
sketch5.addConstraint(Sketcher.Constraint("Distance", 6, Q("1.9 mm")))
sketch5.addConstraint(Sketcher.Constraint("DistanceY", -1, 1, 3, 3, Q("117.419001 mm")))
sketch5.addConstraint(Sketcher.Constraint("DistanceX", 2, 1, 2, 2, Q("0.060439 mm")))
sketch5.addConstraint(Sketcher.Constraint("DistanceX", 0, 2, 6, 2, Q("6.4449 mm")))
sketch5.addConstraint(Sketcher.Constraint("Distance", 1, Q("141.53834 mm")))
sketch5.addConstraint(Sketcher.Constraint("DistanceX", -1, 1, 7, 2, Q("79.138761 mm")))
sketch5.addConstraint(Sketcher.Constraint("DistanceY", -1, 1, 7, 2, Q("112.596521 mm")))
sketch5.setExpression("Constraints[16]", "Params.sketch5_radius")
sketch5.setExpression("Constraints[17]", "Params.sketch5_length")
sketch5.setExpression("Constraints[18]", "Params.sketch5_length2")
sketch5.setExpression("Constraints[19]", "Params.sketch5_length3")
pad4 = doc.addObject("PartDesign::Pad", "Pad003")
body.addObject(pad4)
pad4.Profile = sketch5
pad4.setExpression("Length", "Params.pad4_length")
pad4.Reversed = True

# Sketch on YZ plane
sketch6 = doc.addObject("Sketcher::SketchObject", "Sketch005")
body.addObject(sketch6)
sketch6.AttachmentSupport = (doc.YZ_Plane, [""])
sketch6.MapMode = "FlatFace"
sketch6.AttachmentOffset = App.Placement(V(0, 0, -2.5), App.Rotation())
add_polygon(sketch6, [(28, 35), (20, 37), (23, 50), (30, 48)])  # lines 0-3
add_polygon(sketch6, [(32, 91), (39, 90), (36, 77), (29, 78)])  # lines 4-7
sketch6.addConstraint(Sketcher.Constraint("Perpendicular", 0, 1))
sketch6.addConstraint(Sketcher.Constraint("Perpendicular", 1, 2))
sketch6.addConstraint(Sketcher.Constraint("Perpendicular", 2, 3))
sketch6.addConstraint(Sketcher.Constraint("Perpendicular", 3, 4))
sketch6.addConstraint(Sketcher.Constraint("Perpendicular", 4, 5))
sketch6.addConstraint(Sketcher.Constraint("Perpendicular", 5, 6))
sketch6.addConstraint(Sketcher.Constraint("Perpendicular", 6, 7))
sketch6.addConstraint(Sketcher.Constraint("Equal", 2, 4))
sketch6.addConstraint(Sketcher.Constraint("Equal", 3, 5))
sketch6.addConstraint(Sketcher.Constraint("Distance", 0, Q("7.5 mm")))
sketch6.addConstraint(Sketcher.Constraint("Distance", 1, Q("13.5 mm")))
sketch6.addConstraint(Sketcher.Constraint("DistanceX", -1, 1, 2, 2, Q("30.321899 mm")))
sketch6.addConstraint(Sketcher.Constraint("DistanceY", -1, 1, 4, 2, Q("89.869401 mm")))
sketch6.addConstraint(Sketcher.Constraint("DistanceX", -1, 1, 5, 2, Q("36.304202 mm")))
sketch6.addConstraint(Sketcher.Constraint("DistanceX", -1, 1, 1, 2, Q("22.983211 mm")))
sketch6.addConstraint(Sketcher.Constraint("DistanceY", 1, 2, 4, 2, Q("40.038749 mm")))
sketch6.setExpression("Constraints[17]", "Params.sketch6_length")
sketch6.setExpression("Constraints[18]", "Params.sketch6_length2")
pad5 = doc.addObject("PartDesign::Pad", "Pad004")
body.addObject(pad5)
pad5.Profile = sketch6
pad5.setExpression("Length", "Params.pad5_length")
pad5.Reversed = True

# Sketch on YZ plane
sketch7 = doc.addObject("Sketcher::SketchObject", "Sketch006")
body.addObject(sketch7)
sketch7.AttachmentSupport = (doc.YZ_Plane, [""])
sketch7.MapMode = "FlatFace"
sketch7.AttachmentOffset = App.Placement(V(0, 0, -7.5), App.Rotation())
add_polygon(sketch7, [(27.5, 35.1), (20.2, 36.6), (23, 49.8), (25.9, 49.2), (24.2, 40.9), (25.6, 40.6), (27.4, 48.9), (30.3, 48.3)])  # lines 0-7
add_polygon(sketch7, [(31.8, 91.4), (39.1, 89.9), (36.3, 76.7), (33.4, 77.3), (35.1, 85.6), (33.7, 85.9), (31.9, 77.6), (29, 78.2)])  # lines 8-15
sketch7.addConstraint(Sketcher.Constraint("Perpendicular", 0, 1))
sketch7.addConstraint(Sketcher.Constraint("Perpendicular", 1, 2))
sketch7.addConstraint(Sketcher.Constraint("Perpendicular", 2, 3))
sketch7.addConstraint(Sketcher.Constraint("Perpendicular", 3, 4))
sketch7.addConstraint(Sketcher.Constraint("Perpendicular", 4, 5))
sketch7.addConstraint(Sketcher.Constraint("Perpendicular", 5, 6))
sketch7.addConstraint(Sketcher.Constraint("Perpendicular", 6, 7))
sketch7.addConstraint(Sketcher.Constraint("Perpendicular", 7, 8))
sketch7.addConstraint(Sketcher.Constraint("Perpendicular", 8, 9))
sketch7.addConstraint(Sketcher.Constraint("Perpendicular", 9, 10))
sketch7.addConstraint(Sketcher.Constraint("Perpendicular", 10, 11))
sketch7.addConstraint(Sketcher.Constraint("Perpendicular", 11, 12))
sketch7.addConstraint(Sketcher.Constraint("Perpendicular", 12, 13))
sketch7.addConstraint(Sketcher.Constraint("Perpendicular", 13, 14))
sketch7.addConstraint(Sketcher.Constraint("Perpendicular", 14, 15))
sketch7.addConstraint(Sketcher.Constraint("Equal", 3, 5))
sketch7.addConstraint(Sketcher.Constraint("Equal", 2, 6))
sketch7.addConstraint(Sketcher.Constraint("Equal", 0, 8))
sketch7.addConstraint(Sketcher.Constraint("Equal", 7, 9))
sketch7.addConstraint(Sketcher.Constraint("Equal", 6, 10))
sketch7.addConstraint(Sketcher.Constraint("Equal", 5, 11))
sketch7.addConstraint(Sketcher.Constraint("Equal", 4, 12))
sketch7.addConstraint(Sketcher.Constraint("Equal", 11, 13))
sketch7.addConstraint(Sketcher.Constraint("Distance", 2, Q("3 mm")))
sketch7.addConstraint(Sketcher.Constraint("Distance", 0, Q("7.5 mm")))
sketch7.addConstraint(Sketcher.Constraint("Distance", 1, Q("13.5 mm")))
sketch7.addConstraint(Sketcher.Constraint("Distance", 3, Q("8.5 mm")))
sketch7.addConstraint(Sketcher.Constraint("DistanceX", -1, 1, 6, 2, Q("30.321899 mm")))
sketch7.addConstraint(Sketcher.Constraint("DistanceY", -1, 1, 8, 2, Q("89.869401 mm")))
sketch7.addConstraint(Sketcher.Constraint("DistanceX", -1, 1, 9, 2, Q("36.304202 mm")))
sketch7.addConstraint(Sketcher.Constraint("DistanceY", -1, 1, 11, 2, Q("85.595802 mm")))
sketch7.addConstraint(Sketcher.Constraint("DistanceY", 5, 2, 9, 2, Q("27.7574 mm")))
sketch7.setExpression("Constraints[39]", "Params.sketch7_length")
sketch7.setExpression("Constraints[40]", "Params.sketch7_length2")
sketch7.setExpression("Constraints[41]", "Params.sketch7_length3")
sketch7.setExpression("Constraints[42]", "Params.sketch7_length4")
pad6 = doc.addObject("PartDesign::Pad", "Pad005")
body.addObject(pad6)
pad6.Profile = sketch7
pad6.setExpression("Length", "Params.pad6_length")
pad6.Reversed = True

doc.recompute()
